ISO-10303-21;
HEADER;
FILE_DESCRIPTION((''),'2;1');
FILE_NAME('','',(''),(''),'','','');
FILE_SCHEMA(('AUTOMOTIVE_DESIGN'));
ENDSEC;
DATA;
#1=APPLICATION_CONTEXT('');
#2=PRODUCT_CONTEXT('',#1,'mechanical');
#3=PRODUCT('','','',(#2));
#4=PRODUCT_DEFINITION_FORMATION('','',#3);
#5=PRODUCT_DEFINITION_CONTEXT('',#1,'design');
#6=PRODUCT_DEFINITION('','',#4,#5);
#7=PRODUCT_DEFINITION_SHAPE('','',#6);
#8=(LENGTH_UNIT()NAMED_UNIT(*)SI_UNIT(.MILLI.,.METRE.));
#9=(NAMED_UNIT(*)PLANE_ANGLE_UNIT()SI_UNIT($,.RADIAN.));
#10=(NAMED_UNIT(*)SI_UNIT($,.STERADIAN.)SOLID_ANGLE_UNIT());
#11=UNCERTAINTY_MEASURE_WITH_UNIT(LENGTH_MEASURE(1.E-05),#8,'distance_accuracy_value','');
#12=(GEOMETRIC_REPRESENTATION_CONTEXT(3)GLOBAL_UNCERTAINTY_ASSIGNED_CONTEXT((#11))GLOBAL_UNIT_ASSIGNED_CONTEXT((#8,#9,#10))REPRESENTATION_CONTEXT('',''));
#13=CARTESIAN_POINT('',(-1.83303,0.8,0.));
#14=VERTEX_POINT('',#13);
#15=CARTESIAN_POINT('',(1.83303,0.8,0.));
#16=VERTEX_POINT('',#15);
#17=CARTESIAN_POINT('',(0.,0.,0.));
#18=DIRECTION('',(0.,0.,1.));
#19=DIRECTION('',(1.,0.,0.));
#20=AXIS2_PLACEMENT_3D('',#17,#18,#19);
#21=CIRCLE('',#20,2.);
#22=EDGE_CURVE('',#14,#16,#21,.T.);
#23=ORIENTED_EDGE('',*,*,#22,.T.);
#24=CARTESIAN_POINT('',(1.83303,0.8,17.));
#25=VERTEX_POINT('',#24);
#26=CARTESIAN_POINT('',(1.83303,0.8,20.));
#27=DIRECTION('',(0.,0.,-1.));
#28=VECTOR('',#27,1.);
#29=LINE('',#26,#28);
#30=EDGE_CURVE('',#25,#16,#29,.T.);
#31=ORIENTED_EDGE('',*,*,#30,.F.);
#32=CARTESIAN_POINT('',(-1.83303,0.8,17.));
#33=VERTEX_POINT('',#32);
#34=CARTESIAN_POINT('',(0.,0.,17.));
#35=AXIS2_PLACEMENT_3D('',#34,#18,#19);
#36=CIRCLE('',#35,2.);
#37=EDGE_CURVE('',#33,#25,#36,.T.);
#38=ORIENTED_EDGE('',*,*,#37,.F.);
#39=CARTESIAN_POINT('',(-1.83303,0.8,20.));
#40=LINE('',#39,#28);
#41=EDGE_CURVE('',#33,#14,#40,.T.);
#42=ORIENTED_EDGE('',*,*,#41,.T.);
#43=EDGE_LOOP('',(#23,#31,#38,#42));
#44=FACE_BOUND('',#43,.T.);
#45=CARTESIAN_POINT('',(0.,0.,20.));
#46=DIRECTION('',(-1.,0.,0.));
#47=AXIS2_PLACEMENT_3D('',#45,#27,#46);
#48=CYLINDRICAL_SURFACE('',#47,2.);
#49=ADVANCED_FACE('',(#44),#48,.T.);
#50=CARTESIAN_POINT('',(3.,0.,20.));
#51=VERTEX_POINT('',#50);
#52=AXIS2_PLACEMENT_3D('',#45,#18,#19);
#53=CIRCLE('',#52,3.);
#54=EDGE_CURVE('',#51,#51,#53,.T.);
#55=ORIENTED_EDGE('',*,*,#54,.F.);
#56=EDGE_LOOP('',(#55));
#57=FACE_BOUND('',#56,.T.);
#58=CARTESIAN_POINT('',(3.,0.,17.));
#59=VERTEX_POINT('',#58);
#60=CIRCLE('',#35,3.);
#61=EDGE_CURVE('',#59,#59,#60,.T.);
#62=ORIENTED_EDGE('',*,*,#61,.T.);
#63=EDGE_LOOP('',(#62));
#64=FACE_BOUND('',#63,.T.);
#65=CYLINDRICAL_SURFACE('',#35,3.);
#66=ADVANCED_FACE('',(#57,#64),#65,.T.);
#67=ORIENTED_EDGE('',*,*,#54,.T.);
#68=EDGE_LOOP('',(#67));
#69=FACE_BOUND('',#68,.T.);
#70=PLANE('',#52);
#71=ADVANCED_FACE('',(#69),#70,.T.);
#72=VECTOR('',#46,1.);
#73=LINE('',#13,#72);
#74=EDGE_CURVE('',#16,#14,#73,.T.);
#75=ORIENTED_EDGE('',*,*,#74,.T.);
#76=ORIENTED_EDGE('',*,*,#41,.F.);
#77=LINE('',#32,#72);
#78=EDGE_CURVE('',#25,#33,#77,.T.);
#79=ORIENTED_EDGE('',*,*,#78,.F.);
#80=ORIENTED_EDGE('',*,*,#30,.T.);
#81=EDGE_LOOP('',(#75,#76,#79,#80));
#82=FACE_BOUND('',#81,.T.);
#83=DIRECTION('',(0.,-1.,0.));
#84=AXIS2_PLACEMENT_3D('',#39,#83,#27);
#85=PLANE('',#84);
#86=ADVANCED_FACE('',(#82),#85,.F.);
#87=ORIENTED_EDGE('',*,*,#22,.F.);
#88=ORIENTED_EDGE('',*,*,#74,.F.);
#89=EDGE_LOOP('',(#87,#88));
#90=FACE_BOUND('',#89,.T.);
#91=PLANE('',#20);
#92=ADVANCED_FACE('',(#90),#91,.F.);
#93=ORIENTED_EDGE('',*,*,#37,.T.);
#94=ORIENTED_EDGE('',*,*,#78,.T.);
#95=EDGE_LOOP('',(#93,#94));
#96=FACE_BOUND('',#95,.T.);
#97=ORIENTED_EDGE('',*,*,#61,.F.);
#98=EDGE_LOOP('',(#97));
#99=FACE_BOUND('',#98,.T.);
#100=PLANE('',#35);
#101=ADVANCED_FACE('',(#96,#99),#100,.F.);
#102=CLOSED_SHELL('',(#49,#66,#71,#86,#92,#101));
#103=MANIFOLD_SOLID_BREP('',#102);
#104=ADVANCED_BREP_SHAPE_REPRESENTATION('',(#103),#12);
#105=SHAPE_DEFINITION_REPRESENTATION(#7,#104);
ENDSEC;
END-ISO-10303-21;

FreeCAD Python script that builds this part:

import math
import FreeCAD as App
import Part
import Sketcher

doc = App.newDocument("Part")
body = doc.addObject("PartDesign::Body", "Body")

# Sketch on XY plane
sketch1 = body.newObject("Sketcher::SketchObject", "Sketch")
sketch1.AttachmentSupport = (doc.getObject("XY_Plane"), [""])
sketch1.MapMode = "FlatFace"
sketch1.addGeometry(Part.LineSegment(App.Vector(1.83303, 0.8, 0), App.Vector(-1.83303, 0.8, 0)), False)
sketch1.addGeometry(Part.ArcOfCircle(Part.Circle(App.Vector(0, 0, 0), App.Vector(0, 0, 1), 2), math.radians(156.421822), math.radians(383.578178)), False)
sketch1.addConstraint(Sketcher.Constraint("Coincident", 0, 1, 1, 2))
sketch1.addConstraint(Sketcher.Constraint("Coincident", 1, 1, 0, 2))
sketch1.addConstraint(Sketcher.Constraint("Horizontal", 0))
sketch1.addConstraint(Sketcher.Constraint("Coincident", 1, 3, -1, 1))
sketch1.addConstraint(Sketcher.Constraint("Radius", 1, 2.0))
sketch1.addConstraint(Sketcher.Constraint("DistanceY", -1, 1, 0, 1, 0.8))
pad1 = body.newObject("PartDesign::Pad", "Pad")
pad1.Profile = sketch1
pad1.Length = 20

# Sketch on XY plane
sketch2 = body.newObject("Sketcher::SketchObject", "Sketch001")
sketch2.AttachmentSupport = (doc.getObject("XY_Plane"), [""])
sketch2.MapMode = "FlatFace"
sketch2.AttachmentOffset = App.Placement(App.Vector(0, 0, 20), App.Rotation())
sketch2.addGeometry(Part.Circle(App.Vector(0, 0, 0), App.Vector(0, 0, 1), 3), False)
sketch2.addConstraint(Sketcher.Constraint("Coincident", 0, 3, -1, 1))
sketch2.addConstraint(Sketcher.Constraint("Diameter", 0, 6.0))
pad2 = body.newObject("PartDesign::Pad", "Pad001")
pad2.Profile = sketch2
pad2.Length = 3
pad2.Reversed = True

doc.recompute()
